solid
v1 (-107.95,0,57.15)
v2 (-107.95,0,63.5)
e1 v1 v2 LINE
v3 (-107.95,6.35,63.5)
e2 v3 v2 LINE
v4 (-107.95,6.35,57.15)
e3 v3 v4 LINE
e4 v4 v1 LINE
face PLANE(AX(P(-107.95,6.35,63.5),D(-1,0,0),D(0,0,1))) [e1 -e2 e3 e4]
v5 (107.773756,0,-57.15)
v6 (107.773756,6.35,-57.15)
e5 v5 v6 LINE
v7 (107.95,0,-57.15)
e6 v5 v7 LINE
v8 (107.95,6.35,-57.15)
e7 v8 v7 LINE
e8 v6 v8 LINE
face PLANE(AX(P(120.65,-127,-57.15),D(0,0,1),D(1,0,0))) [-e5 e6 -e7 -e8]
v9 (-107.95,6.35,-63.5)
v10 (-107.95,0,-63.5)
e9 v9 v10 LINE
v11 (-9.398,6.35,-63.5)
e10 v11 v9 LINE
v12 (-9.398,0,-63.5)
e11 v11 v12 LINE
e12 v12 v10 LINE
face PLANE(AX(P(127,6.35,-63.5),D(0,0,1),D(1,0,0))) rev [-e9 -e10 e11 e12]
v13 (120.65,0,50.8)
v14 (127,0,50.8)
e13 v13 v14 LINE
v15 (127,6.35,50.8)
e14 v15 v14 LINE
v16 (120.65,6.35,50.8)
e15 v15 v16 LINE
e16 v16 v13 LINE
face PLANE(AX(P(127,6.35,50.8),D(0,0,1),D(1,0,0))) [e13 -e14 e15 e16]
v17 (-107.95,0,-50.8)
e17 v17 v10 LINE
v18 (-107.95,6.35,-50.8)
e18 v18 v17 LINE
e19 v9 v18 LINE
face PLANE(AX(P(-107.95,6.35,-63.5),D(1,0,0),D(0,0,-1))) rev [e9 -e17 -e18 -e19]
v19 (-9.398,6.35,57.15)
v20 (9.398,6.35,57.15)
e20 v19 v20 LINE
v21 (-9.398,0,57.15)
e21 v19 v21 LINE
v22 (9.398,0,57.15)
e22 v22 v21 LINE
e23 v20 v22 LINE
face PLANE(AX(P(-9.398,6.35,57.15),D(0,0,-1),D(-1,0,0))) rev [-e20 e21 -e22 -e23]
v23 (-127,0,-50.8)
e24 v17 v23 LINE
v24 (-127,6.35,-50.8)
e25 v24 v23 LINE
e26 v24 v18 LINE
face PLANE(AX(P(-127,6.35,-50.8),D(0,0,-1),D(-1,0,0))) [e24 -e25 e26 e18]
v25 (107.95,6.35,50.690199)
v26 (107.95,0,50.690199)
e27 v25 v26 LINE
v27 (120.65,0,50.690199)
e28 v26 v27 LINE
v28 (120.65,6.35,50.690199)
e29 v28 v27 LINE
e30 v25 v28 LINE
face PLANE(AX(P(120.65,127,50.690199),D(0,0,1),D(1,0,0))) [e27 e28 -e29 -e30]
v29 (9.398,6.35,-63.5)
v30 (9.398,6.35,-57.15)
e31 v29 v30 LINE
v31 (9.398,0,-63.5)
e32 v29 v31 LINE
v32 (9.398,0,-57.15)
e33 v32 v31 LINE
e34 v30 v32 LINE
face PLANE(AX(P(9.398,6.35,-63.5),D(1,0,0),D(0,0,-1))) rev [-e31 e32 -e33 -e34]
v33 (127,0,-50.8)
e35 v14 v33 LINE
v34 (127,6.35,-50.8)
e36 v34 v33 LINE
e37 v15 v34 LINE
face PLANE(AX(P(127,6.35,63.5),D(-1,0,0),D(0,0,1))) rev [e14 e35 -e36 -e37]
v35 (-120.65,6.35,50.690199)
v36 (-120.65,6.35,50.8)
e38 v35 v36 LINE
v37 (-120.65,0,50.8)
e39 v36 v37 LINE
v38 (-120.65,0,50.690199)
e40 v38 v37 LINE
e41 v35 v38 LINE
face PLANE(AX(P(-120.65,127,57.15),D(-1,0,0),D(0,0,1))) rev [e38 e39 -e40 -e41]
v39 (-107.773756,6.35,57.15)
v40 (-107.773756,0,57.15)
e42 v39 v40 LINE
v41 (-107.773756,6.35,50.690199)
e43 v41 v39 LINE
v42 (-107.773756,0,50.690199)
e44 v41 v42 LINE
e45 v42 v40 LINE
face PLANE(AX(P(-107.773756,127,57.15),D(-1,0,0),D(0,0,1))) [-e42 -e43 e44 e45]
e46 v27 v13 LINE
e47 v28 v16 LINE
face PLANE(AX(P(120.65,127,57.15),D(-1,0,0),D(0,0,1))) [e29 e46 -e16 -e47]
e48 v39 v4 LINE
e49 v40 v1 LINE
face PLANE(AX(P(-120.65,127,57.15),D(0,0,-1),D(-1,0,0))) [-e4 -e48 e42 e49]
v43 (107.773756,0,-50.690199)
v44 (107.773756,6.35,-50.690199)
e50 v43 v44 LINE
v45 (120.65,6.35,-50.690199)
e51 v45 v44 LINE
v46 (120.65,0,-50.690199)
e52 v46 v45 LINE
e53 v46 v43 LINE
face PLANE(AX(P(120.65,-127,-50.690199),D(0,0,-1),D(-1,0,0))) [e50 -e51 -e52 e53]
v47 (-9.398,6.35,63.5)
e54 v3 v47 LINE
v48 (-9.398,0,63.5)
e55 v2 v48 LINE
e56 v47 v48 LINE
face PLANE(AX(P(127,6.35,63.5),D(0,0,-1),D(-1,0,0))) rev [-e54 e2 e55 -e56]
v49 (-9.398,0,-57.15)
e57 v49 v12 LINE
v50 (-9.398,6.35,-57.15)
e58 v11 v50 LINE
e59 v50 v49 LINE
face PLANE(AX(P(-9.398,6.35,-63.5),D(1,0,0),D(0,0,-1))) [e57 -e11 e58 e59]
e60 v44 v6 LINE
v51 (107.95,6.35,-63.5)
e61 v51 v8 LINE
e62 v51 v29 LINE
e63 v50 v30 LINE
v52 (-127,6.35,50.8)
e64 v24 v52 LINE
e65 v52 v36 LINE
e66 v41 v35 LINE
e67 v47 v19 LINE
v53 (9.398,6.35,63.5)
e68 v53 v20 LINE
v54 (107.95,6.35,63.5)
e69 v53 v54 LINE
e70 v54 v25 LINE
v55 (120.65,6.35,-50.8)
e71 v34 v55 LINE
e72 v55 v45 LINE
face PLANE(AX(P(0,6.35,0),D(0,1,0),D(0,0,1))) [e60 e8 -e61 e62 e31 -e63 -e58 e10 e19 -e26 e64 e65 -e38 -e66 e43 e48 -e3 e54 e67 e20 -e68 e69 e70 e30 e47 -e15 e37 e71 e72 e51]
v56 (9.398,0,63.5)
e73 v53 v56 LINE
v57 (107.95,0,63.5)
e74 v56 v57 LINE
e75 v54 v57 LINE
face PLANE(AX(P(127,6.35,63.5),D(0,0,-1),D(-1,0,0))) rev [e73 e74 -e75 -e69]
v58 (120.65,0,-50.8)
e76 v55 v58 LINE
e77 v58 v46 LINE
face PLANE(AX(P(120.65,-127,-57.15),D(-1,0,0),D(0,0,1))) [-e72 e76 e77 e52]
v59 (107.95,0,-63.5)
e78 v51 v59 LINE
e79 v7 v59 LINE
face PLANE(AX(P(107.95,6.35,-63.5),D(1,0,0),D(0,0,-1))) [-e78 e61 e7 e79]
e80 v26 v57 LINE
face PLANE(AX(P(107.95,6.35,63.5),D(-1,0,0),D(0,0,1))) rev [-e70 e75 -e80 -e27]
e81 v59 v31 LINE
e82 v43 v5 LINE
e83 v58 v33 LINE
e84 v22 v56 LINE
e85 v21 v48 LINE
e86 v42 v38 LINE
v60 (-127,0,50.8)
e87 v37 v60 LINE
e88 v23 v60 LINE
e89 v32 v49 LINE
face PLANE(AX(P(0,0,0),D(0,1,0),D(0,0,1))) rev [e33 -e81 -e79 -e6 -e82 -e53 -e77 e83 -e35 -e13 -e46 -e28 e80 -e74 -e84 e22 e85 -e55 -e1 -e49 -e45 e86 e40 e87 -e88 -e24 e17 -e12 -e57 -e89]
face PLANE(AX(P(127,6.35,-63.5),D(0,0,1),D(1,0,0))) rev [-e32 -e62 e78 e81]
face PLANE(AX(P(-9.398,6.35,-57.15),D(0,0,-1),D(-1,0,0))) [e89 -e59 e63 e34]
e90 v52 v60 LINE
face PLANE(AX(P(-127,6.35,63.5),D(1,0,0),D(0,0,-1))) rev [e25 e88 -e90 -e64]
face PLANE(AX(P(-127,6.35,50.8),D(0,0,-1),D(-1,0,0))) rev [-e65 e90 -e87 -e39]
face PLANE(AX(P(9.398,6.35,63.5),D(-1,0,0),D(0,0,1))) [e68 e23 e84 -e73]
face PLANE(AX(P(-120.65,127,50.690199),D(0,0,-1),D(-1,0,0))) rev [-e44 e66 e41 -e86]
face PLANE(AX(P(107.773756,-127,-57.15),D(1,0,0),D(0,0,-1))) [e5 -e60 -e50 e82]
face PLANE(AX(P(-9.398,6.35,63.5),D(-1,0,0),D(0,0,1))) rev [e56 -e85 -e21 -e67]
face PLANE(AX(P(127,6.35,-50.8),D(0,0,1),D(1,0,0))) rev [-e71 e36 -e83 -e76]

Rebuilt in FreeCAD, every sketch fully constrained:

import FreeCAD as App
import Part
import Sketcher

V = App.Vector
Q = App.Units.Quantity

doc = App.newDocument("Part")
body = doc.addObject("PartDesign::Body", "Body")

# Sketch on XZ plane
sketch1 = doc.addObject("Sketcher::SketchObject", "Sketch")
body.addObject(sketch1)
sketch1.AttachmentSupport = (doc.XZ_Plane, [""])
sketch1.MapMode = "FlatFace"
sketch1.addGeometry([
    Part.LineSegment(V(-127, -64, 0), V(-127, 64, 0)),
    Part.LineSegment(V(-127, 64, 0), V(127, 64, 0)),
    Part.LineSegment(V(127, 64, 0), V(127, -64, 0)),
    Part.LineSegment(V(127, -64, 0), V(-127, -64, 0)),
], False)
sketch1.addConstraint([
    Sketcher.Constraint("Coincident", 0, 2, 1, 1),
    Sketcher.Constraint("Coincident", 1, 2, 2, 1),
    Sketcher.Constraint("Coincident", 2, 2, 3, 1),
    Sketcher.Constraint("Coincident", 3, 2, 0, 1),
    Sketcher.Constraint("Vertical", 0),
    Sketcher.Constraint("Horizontal", 1),
    Sketcher.Constraint("Vertical", 2),
    Sketcher.Constraint("Horizontal", 3),
    Sketcher.Constraint("Symmetric", 0, 2, 2, 2, -1, 1),
    Sketcher.Constraint("DistanceX", 1, 1, 1, 2, Q("10 in")),
    Sketcher.Constraint("DistanceY", 0, 1, 0, 2, Q("5 in")),
])
pad1 = doc.addObject("PartDesign::Pad", "Pad")
body.addObject(pad1)
pad1.Profile = sketch1
pad1.Length = Q("0.25 in")
pad1.Reversed = True

# Sketch on XZ plane
sketch2 = doc.addObject("Sketcher::SketchObject", "Sketch001")
body.addObject(sketch2)
sketch2.AttachmentSupport = (doc.XZ_Plane, [""])
sketch2.MapMode = "FlatFace"
sketch2.addGeometry([
    Part.LineSegment(V(-108, 64, 0), V(-108, 57, 0)),  # 0
    Part.LineSegment(V(-108, 57, 0), V(-121, 57, 0)),  # 1
    Part.LineSegment(V(-121, 57, 0), V(-121, 51, 0)),  # 2
    Part.LineSegment(V(-121, 51, 0), V(-127, 51, 0)),  # 3
    Part.LineSegment(V(-127, 51, 0), V(-127, 64, 0)),  # 4
    Part.LineSegment(V(-127, 64, 0), V(-108, 64, 0)),  # 5
    Part.LineSegment(V(-9, 57, 0), V(-9, 64, 0)),  # 6
    Part.LineSegment(V(-9, 64, 0), V(9, 64, 0)),  # 7
    Part.LineSegment(V(9, 64, 0), V(9, 57, 0)),  # 8
    Part.LineSegment(V(9, 57, 0), V(-9, 57, 0)),  # 9
    Part.LineSegment(V(-127, -51, 0), V(-121, -51, 0)),  # 10
    Part.LineSegment(V(-121, -51, 0), V(-121, -57, 0)),  # 11
    Part.LineSegment(V(-121, -57, 0), V(-108, -57, 0)),  # 12
    Part.LineSegment(V(-108, -57, 0), V(-108, -64, 0)),  # 13
    Part.LineSegment(V(-108, -64, 0), V(-127, -64, 0)),  # 14
    Part.LineSegment(V(-127, -64, 0), V(-127, -51, 0)),  # 15
    Part.LineSegment(V(-9, -64, 0), V(-9, -57, 0)),  # 16
    Part.LineSegment(V(-9, -57, 0), V(9, -57, 0)),  # 17
    Part.LineSegment(V(9, -57, 0), V(9, -64, 0)),  # 18
    Part.LineSegment(V(9, -64, 0), V(-9, -64, 0)),  # 19
    Part.LineSegment(V(108, 57, 0), V(108, 64, 0)),  # 20
    Part.LineSegment(V(108, 64, 0), V(127, 64, 0)),  # 21
    Part.LineSegment(V(127, 64, 0), V(127, 51, 0)),  # 22
    Part.LineSegment(V(127, 51, 0), V(121, 51, 0)),  # 23
    Part.LineSegment(V(121, 51, 0), V(121, 57, 0)),  # 24
    Part.LineSegment(V(121, 57, 0), V(108, 57, 0)),  # 25
    Part.LineSegment(V(121, -51, 0), V(127, -51, 0)),  # 26
    Part.LineSegment(V(127, -51, 0), V(127, -64, 0)),  # 27
    Part.LineSegment(V(127, -64, 0), V(108, -64, 0)),  # 28
    Part.LineSegment(V(108, -64, 0), V(108, -57, 0)),  # 29
    Part.LineSegment(V(108, -57, 0), V(121, -57, 0)),  # 30
    Part.LineSegment(V(121, -57, 0), V(121, -51, 0)),  # 31
], False)
sketch2.addConstraint([
    Sketcher.Constraint("Coincident", 0, 2, 1, 1),
    Sketcher.Constraint("Coincident", 1, 2, 2, 1),
    Sketcher.Constraint("Coincident", 2, 2, 3, 1),
    Sketcher.Constraint("Coincident", 3, 2, 4, 1),
    Sketcher.Constraint("Coincident", 4, 2, 5, 1),
    Sketcher.Constraint("Coincident", 5, 2, 0, 1),
    Sketcher.Constraint("Coincident", 6, 2, 7, 1),
    Sketcher.Constraint("Coincident", 7, 2, 8, 1),
    Sketcher.Constraint("Coincident", 8, 2, 9, 1),
    Sketcher.Constraint("Coincident", 9, 2, 6, 1),
    Sketcher.Constraint("Coincident", 10, 2, 11, 1),
    Sketcher.Constraint("Coincident", 11, 2, 12, 1),
    Sketcher.Constraint("Coincident", 12, 2, 13, 1),
    Sketcher.Constraint("Coincident", 13, 2, 14, 1),
    Sketcher.Constraint("Coincident", 14, 2, 15, 1),
    Sketcher.Constraint("Coincident", 15, 2, 10, 1),
    Sketcher.Constraint("Coincident", 16, 2, 17, 1),
    Sketcher.Constraint("Coincident", 17, 2, 18, 1),
    Sketcher.Constraint("Coincident", 18, 2, 19, 1),
    Sketcher.Constraint("Coincident", 19, 2, 16, 1),
    Sketcher.Constraint("Coincident", 20, 2, 21, 1),
    Sketcher.Constraint("Coincident", 21, 2, 22, 1),
    Sketcher.Constraint("Coincident", 22, 2, 23, 1),
    Sketcher.Constraint("Coincident", 23, 2, 24, 1),
    Sketcher.Constraint("Coincident", 24, 2, 25, 1),
    Sketcher.Constraint("Coincident", 25, 2, 20, 1),
    Sketcher.Constraint("Coincident", 26, 2, 27, 1),
    Sketcher.Constraint("Coincident", 27, 2, 28, 1),
    Sketcher.Constraint("Coincident", 28, 2, 29, 1),
    Sketcher.Constraint("Coincident", 29, 2, 30, 1),
    Sketcher.Constraint("Coincident", 30, 2, 31, 1),
    Sketcher.Constraint("Coincident", 31, 2, 26, 1),
    Sketcher.Constraint("Vertical", 0),
    Sketcher.Constraint("Horizontal", 1),
    Sketcher.Constraint("Vertical", 2),
    Sketcher.Constraint("Horizontal", 3),
    Sketcher.Constraint("Vertical", 4),
    Sketcher.Constraint("Horizontal", 5),
    Sketcher.Constraint("Vertical", 6),
    Sketcher.Constraint("Horizontal", 7),
    Sketcher.Constraint("Vertical", 8),
    Sketcher.Constraint("Horizontal", 9),
    Sketcher.Constraint("Horizontal", 10),
    Sketcher.Constraint("Vertical", 11),
    Sketcher.Constraint("Horizontal", 12),
    Sketcher.Constraint("Vertical", 13),
    Sketcher.Constraint("Horizontal", 14),
    Sketcher.Constraint("Vertical", 15),
    Sketcher.Constraint("Vertical", 16),
    Sketcher.Constraint("Horizontal", 17),
    Sketcher.Constraint("Vertical", 18),
    Sketcher.Constraint("Horizontal", 19),
    Sketcher.Constraint("Vertical", 20),
    Sketcher.Constraint("Horizontal", 21),
    Sketcher.Constraint("Vertical", 22),
    Sketcher.Constraint("Horizontal", 23),
    Sketcher.Constraint("Vertical", 24),
    Sketcher.Constraint("Horizontal", 25),
    Sketcher.Constraint("Horizontal", 26),
    Sketcher.Constraint("Vertical", 27),
    Sketcher.Constraint("Horizontal", 28),
    Sketcher.Constraint("Vertical", 29),
    Sketcher.Constraint("Horizontal", 30),
    Sketcher.Constraint("Vertical", 31),
    Sketcher.Constraint("Symmetric", 8, 2, 16, 2, -1, 1),
    Sketcher.Constraint("Symmetric", 6, 2, 18, 2, -1, 1),
    Sketcher.Constraint("Symmetric", 13, 2, 20, 2, -1, 1),
    Sketcher.Constraint("Symmetric", 15, 2, 22, 2, -1, 1),
    Sketcher.Constraint("Symmetric", 11, 2, 24, 2, -1, 1),
    Sketcher.Constraint("Symmetric", 3, 2, 26, 2, -1, 1),
    Sketcher.Constraint("Symmetric", 5, 2, 28, 2, -1, 1),
    Sketcher.Constraint("Symmetric", 1, 2, 30, 2, -1, 1),
    Sketcher.Constraint("Symmetric", 5, 2, 20, 2, -2),
    Sketcher.Constraint("Symmetric", 3, 2, 22, 2, -2),
    Sketcher.Constraint("Symmetric", 1, 2, 24, 2, -2),
    Sketcher.Constraint("Horizontal", 5, 2, 6, 2),
    Sketcher.Constraint("Horizontal", 1, 2, 8, 2),
    Sketcher.Constraint("Vertical", 9, 2, 16, 2),
    Sketcher.Constraint("Equal", 26, 0),
    Sketcher.Constraint("Equal", 0, 2),
    Sketcher.Constraint("Equal", 30, 4),
    Sketcher.Constraint("DistanceX", 1, 2, 1, 1, Q("0.5 in")),
    Sketcher.Constraint("DistanceY", -1, 1, 2, 2, Q("2 in")),
    Sketcher.Constraint("DistanceX", 3, 2, -1, 1, Q("5 in")),
    Sketcher.Constraint("DistanceX", 7, 1, 7, 2, Q("0.74 in")),
])
pocket1 = doc.addObject("PartDesign::Pocket", "Pocket")
body.addObject(pocket1)
pocket1.Profile = sketch2
pocket1.Type = "ThroughAll"
pocket1.Midplane = True

# Sketch on XZ plane
sketch3 = doc.addObject("Sketcher::SketchObject", "Sketch002")
body.addObject(sketch3)
sketch3.AttachmentSupport = (doc.XZ_Plane, [""])
sketch3.MapMode = "FlatFace"
sketch3.addGeometry([
    Part.LineSegment(V(-121, 51, 0), V(-121, 57, 0)),  # 0
    Part.LineSegment(V(-121, 57, 0), V(-108, 57, 0)),  # 1
    Part.LineSegment(V(-108, 57, 0), V(-108, 51, 0)),  # 2
    Part.LineSegment(V(-108, 51, 0), V(-121, 51, 0)),  # 3
    Part.LineSegment(V(-121, -57, 0), V(-121, -51, 0)),  # 4
    Part.LineSegment(V(-121, -51, 0), V(-108, -51, 0)),  # 5
    Part.LineSegment(V(-108, -51, 0), V(-108, -57, 0)),  # 6
    Part.LineSegment(V(-108, -57, 0), V(-121, -57, 0)),  # 7
    Part.LineSegment(V(108, 51, 0), V(108, 57, 0)),  # 8
    Part.LineSegment(V(108, 57, 0), V(121, 57, 0)),  # 9
    Part.LineSegment(V(121, 57, 0), V(121, 51, 0)),  # 10
    Part.LineSegment(V(121, 51, 0), V(108, 51, 0)),  # 11
], False)
sketch3.addConstraint([
    Sketcher.Constraint("Coincident", 0, 2, 1, 1),
    Sketcher.Constraint("Coincident", 1, 2, 2, 1),
    Sketcher.Constraint("Coincident", 2, 2, 3, 1),
    Sketcher.Constraint("Coincident", 3, 2, 0, 1),
    Sketcher.Constraint("Coincident", 4, 2, 5, 1),
    Sketcher.Constraint("Coincident", 5, 2, 6, 1),
    Sketcher.Constraint("Coincident", 6, 2, 7, 1),
    Sketcher.Constraint("Coincident", 7, 2, 4, 1),
    Sketcher.Constraint("Coincident", 8, 2, 9, 1),
    Sketcher.Constraint("Coincident", 9, 2, 10, 1),
    Sketcher.Constraint("Coincident", 10, 2, 11, 1),
    Sketcher.Constraint("Coincident", 11, 2, 8, 1),
    Sketcher.Constraint("Vertical", 0),
    Sketcher.Constraint("Horizontal", 1),
    Sketcher.Constraint("Vertical", 2),
    Sketcher.Constraint("Horizontal", 3),
    Sketcher.Constraint("Vertical", 4),
    Sketcher.Constraint("Horizontal", 5),
    Sketcher.Constraint("Vertical", 6),
    Sketcher.Constraint("Horizontal", 7),
    Sketcher.Constraint("Vertical", 8),
    Sketcher.Constraint("Horizontal", 9),
    Sketcher.Constraint("Vertical", 10),
    Sketcher.Constraint("Horizontal", 11),
    Sketcher.Constraint("Symmetric", 6, 2, 8, 2, -1, 1),
    Sketcher.Constraint("Symmetric", 0, 2, 9, 2, -2),
    Sketcher.Constraint("Horizontal", 3, 2, 10, 2),
    Sketcher.Constraint("Vertical", 3, 2, 4, 2),
    Sketcher.Constraint("DistanceX", 5, 1, 5, 2, Q("0.5 in")),
    Sketcher.Constraint("DistanceY", 4, 2, -1, 1, Q("2 in")),
    Sketcher.Constraint("DistanceX", 0, 2, 8, 2, Q("9 in")),
    Sketcher.Constraint("DistanceY", 4, 1, 4, 2, Q("0.25 in")),
    Sketcher.Constraint("DistanceY", 0, 1, 0, 2, Q("6.459801 mm")),
    Sketcher.Constraint("DistanceX", 1, 1, 1, 2, Q("12.876244 mm")),
])
pocket2 = doc.addObject("PartDesign::Pocket", "Pocket001")
body.addObject(pocket2)
pocket2.Profile = sketch3
pocket2.Type = "ThroughAll"
pocket2.Midplane = True

# Sketch on XZ plane
sketch4 = doc.addObject("Sketcher::SketchObject", "Sketch003")
body.addObject(sketch4)
sketch4.AttachmentSupport = (doc.XZ_Plane, [""])
sketch4.MapMode = "FlatFace"
sketch4.addGeometry([
    Part.LineSegment(V(121, -57, 0), V(121, -51, 0)),
    Part.LineSegment(V(121, -51, 0), V(108, -51, 0)),
    Part.LineSegment(V(108, -51, 0), V(108, -57, 0)),
    Part.LineSegment(V(108, -57, 0), V(121, -57, 0)),
], False)
sketch4.addConstraint([
    Sketcher.Constraint("Coincident", 0, 2, 1, 1),
    Sketcher.Constraint("Coincident", 1, 2, 2, 1),
    Sketcher.Constraint("Coincident", 2, 2, 3, 1),
    Sketcher.Constraint("Coincident", 3, 2, 0, 1),
    Sketcher.Constraint("Vertical", 0),
    Sketcher.Constraint("Horizontal", 1),
    Sketcher.Constraint("Vertical", 2),
    Sketcher.Constraint("Horizontal", 3),
    Sketcher.Constraint("DistanceX", -1, 1, 0, 2, Q("4.75 in")),
    Sketcher.Constraint("DistanceY", 2, 2, -1, 1, Q("2.25 in")),
    Sketcher.Constraint("DistanceY", 0, 1, 0, 2, Q("6.459801 mm")),
    Sketcher.Constraint("DistanceX", 1, 2, 1, 1, Q("12.876244 mm")),
])
pocket3 = doc.addObject("PartDesign::Pocket", "Pocket002")
body.addObject(pocket3)
pocket3.Profile = sketch4
pocket3.Type = "ThroughAll"
pocket3.Midplane = True

doc.recompute()
